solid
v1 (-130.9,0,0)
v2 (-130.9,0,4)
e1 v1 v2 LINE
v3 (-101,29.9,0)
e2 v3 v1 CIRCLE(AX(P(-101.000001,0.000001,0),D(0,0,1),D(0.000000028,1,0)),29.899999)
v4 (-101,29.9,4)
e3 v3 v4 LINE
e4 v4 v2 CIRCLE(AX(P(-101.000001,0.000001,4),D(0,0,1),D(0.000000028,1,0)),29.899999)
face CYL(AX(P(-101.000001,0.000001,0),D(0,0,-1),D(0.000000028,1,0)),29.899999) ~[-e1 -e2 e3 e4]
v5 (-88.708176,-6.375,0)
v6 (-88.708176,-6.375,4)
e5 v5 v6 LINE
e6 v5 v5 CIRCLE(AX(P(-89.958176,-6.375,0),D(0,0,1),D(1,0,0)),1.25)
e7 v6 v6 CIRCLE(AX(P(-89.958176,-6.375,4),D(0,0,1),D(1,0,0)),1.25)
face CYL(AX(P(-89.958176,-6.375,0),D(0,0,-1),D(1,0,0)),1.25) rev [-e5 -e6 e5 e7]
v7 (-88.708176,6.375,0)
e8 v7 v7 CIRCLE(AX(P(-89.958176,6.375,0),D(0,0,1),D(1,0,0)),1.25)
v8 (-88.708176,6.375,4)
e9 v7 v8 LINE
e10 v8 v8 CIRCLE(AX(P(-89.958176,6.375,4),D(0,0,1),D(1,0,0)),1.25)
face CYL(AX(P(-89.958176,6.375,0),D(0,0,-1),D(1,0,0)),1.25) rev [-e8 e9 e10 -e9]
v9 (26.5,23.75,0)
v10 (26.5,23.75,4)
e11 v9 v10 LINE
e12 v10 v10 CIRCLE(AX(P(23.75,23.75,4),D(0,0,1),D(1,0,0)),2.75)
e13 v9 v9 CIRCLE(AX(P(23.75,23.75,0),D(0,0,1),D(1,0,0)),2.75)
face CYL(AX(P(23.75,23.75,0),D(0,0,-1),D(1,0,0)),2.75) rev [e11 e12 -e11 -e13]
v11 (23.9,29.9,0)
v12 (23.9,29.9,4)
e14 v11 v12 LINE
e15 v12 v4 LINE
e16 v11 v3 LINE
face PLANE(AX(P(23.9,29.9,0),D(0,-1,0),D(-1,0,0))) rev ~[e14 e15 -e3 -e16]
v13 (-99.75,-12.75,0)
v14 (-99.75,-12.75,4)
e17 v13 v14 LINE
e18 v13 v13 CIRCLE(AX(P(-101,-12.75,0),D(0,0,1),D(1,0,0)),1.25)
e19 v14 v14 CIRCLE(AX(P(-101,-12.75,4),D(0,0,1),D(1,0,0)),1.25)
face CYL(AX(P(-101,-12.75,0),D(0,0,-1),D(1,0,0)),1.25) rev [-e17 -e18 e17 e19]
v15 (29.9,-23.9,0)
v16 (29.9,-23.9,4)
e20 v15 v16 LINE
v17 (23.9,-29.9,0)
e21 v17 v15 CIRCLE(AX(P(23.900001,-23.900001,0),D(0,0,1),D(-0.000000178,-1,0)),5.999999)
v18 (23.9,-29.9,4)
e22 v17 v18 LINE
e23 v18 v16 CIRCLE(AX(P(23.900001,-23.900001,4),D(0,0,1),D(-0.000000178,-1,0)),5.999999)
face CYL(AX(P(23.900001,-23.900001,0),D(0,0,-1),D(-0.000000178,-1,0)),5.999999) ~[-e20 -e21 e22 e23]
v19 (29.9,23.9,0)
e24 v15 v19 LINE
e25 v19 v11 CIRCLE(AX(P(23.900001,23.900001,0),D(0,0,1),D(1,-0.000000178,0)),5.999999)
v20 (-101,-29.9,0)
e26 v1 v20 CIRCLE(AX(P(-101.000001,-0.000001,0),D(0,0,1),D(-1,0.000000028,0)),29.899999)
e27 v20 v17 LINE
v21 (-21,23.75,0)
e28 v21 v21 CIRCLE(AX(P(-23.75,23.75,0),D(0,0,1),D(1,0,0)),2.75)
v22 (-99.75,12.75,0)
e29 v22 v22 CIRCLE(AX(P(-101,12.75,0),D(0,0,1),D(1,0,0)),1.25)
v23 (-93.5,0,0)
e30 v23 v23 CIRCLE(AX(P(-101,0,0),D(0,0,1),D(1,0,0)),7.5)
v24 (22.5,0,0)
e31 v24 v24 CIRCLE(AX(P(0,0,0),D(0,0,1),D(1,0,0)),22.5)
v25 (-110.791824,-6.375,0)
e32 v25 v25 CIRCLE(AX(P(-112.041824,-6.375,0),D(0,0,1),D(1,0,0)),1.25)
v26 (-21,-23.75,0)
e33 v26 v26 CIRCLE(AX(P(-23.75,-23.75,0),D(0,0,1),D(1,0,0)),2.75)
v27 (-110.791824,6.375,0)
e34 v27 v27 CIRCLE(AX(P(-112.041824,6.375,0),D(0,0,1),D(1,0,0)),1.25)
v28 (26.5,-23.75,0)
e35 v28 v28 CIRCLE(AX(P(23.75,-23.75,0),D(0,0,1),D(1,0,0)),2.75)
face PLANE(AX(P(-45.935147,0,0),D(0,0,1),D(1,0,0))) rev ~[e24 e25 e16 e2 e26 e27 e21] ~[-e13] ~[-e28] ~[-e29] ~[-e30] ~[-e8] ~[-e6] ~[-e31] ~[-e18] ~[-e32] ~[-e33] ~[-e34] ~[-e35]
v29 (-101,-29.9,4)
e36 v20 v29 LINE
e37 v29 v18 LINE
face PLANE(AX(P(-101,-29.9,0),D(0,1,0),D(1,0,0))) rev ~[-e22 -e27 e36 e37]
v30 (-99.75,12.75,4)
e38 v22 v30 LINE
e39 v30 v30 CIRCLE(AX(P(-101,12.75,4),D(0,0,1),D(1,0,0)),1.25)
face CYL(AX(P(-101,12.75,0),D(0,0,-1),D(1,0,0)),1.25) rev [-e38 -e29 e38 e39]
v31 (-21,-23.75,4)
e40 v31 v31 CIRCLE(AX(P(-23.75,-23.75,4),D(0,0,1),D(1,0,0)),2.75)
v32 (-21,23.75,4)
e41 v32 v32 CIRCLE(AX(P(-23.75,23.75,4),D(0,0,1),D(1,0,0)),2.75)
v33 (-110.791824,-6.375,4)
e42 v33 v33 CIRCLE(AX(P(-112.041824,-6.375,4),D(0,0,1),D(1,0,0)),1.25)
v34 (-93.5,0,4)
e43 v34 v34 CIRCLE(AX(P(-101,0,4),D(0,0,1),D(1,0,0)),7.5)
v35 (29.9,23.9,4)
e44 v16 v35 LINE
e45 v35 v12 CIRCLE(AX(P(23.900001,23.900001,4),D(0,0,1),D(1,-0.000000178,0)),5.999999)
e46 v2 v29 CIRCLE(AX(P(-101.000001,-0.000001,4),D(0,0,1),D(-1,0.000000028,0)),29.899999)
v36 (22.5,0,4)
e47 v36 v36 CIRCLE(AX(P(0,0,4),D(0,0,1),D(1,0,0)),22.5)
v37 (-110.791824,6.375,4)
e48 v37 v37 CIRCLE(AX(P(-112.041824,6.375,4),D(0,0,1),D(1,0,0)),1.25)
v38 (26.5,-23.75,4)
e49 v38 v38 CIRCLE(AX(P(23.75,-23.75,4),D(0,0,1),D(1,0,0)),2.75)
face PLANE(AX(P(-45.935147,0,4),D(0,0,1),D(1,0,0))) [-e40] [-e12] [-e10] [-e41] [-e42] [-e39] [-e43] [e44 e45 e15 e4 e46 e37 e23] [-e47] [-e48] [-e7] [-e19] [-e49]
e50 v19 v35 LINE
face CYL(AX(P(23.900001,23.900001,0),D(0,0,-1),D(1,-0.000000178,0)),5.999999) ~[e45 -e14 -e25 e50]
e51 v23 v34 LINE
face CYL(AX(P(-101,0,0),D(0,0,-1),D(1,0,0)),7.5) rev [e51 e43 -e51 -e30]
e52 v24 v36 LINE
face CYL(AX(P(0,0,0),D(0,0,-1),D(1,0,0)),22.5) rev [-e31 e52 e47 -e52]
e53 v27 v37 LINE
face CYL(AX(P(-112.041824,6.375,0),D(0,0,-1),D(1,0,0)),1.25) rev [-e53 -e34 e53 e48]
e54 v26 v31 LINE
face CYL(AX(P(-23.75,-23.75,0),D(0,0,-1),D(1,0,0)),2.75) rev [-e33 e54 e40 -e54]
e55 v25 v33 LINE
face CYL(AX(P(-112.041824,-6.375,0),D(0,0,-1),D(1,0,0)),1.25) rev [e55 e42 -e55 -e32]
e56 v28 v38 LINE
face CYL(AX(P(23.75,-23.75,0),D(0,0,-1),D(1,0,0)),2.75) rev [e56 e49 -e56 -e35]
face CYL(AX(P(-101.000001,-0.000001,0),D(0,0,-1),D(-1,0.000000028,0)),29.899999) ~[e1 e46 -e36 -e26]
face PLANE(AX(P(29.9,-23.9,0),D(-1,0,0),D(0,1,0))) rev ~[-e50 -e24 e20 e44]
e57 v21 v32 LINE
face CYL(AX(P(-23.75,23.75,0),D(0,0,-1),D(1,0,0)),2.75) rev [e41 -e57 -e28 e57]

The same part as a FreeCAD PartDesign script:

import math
import FreeCAD as App
import Part
import Sketcher

doc = App.newDocument("Part")
body = doc.addObject("PartDesign::Body", "Body")

sketch1 = body.newObject("Sketcher::SketchObject", "Sketch")
sketch1.AttachmentSupport = (doc.getObject("XY_Plane"), [""])
sketch1.MapMode = "FlatFace"
sketch1.addGeometry(Part.LineSegment(App.Vector(23.9, 29.9, 0), App.Vector(-101, 29.9, 0)), False)
sketch1.addGeometry(Part.ArcOfCircle(Part.Circle(App.Vector(-101, 0, 0), App.Vector(0, 0, 1), 29.9), math.radians(90), math.radians(180)), False)
sketch1.addGeometry(Part.ArcOfCircle(Part.Circle(App.Vector(-101, 0, 0), App.Vector(0, 0, 1), 29.9), math.radians(180), math.radians(270)), False)
sketch1.addGeometry(Part.LineSegment(App.Vector(-101, -29.9, 0), App.Vector(23.9, -29.9, 0)), False)
sketch1.addGeometry(Part.ArcOfCircle(Part.Circle(App.Vector(23.9, -23.9, 0), App.Vector(0, 0, 1), 6), math.radians(-90), math.radians(0)), False)
sketch1.addGeometry(Part.LineSegment(App.Vector(29.9, -23.9, 0), App.Vector(29.9, 23.9, 0)), False)
sketch1.addGeometry(Part.ArcOfCircle(Part.Circle(App.Vector(23.9, 23.9, 0), App.Vector(0, 0, 1), 6), math.radians(0), math.radians(90)), False)
sketch1.addGeometry(Part.Circle(App.Vector(-101, -12.8, 0), App.Vector(0, 0, 1), 1.2), False)
sketch1.addGeometry(Part.Circle(App.Vector(-112, -6.4, 0), App.Vector(0, 0, 1), 1.2), False)
sketch1.addGeometry(Part.Circle(App.Vector(-90, -6.4, 0), App.Vector(0, 0, 1), 1.2), False)
sketch1.addGeometry(Part.Circle(App.Vector(-23.8, -23.8, 0), App.Vector(0, 0, 1), 2.8), False)
sketch1.addGeometry(Part.Circle(App.Vector(23.8, -23.8, 0), App.Vector(0, 0, 1), 2.8), False)
sketch1.addGeometry(Part.Circle(App.Vector(-101, 0, 0), App.Vector(0, 0, 1), 7.5), False)
sketch1.addGeometry(Part.Circle(App.Vector(-112, 6.4, 0), App.Vector(0, 0, 1), 1.2), False)
sketch1.addGeometry(Part.Circle(App.Vector(-90, 6.4, 0), App.Vector(0, 0, 1), 1.2), False)
sketch1.addGeometry(Part.Circle(App.Vector(-101, 12.8, 0), App.Vector(0, 0, 1), 1.2), False)
sketch1.addGeometry(Part.Circle(App.Vector(0, 0, 0), App.Vector(0, 0, 1), 22.5), False)
sketch1.addGeometry(Part.Circle(App.Vector(-23.8, 23.8, 0), App.Vector(0, 0, 1), 2.8), False)
sketch1.addGeometry(Part.Circle(App.Vector(23.8, 23.8, 0), App.Vector(0, 0, 1), 2.8), False)
sketch1.addConstraint(Sketcher.Constraint("Tangent", 0, 2, 1, 1))
sketch1.addConstraint(Sketcher.Constraint("Tangent", 1, 2, 2, 1))
sketch1.addConstraint(Sketcher.Constraint("Tangent", 2, 2, 3, 1))
sketch1.addConstraint(Sketcher.Constraint("Tangent", 3, 2, 4, 1))
sketch1.addConstraint(Sketcher.Constraint("Tangent", 4, 2, 5, 1))
sketch1.addConstraint(Sketcher.Constraint("Tangent", 5, 2, 6, 1))
sketch1.addConstraint(Sketcher.Constraint("Tangent", 6, 2, 0, 1))
sketch1.addConstraint(Sketcher.Constraint("Horizontal", 0))
sketch1.addConstraint(Sketcher.Constraint("Horizontal", 3))
sketch1.addConstraint(Sketcher.Constraint("Vertical", 5))
sketch1.addConstraint(Sketcher.Constraint("Coincident", 16, 3, -1, 1))
sketch1.addConstraint(Sketcher.Constraint("Coincident", 12, 3, 1, 3))
sketch1.addConstraint(Sketcher.Constraint("Equal", 1, 2))
sketch1.addConstraint(Sketcher.Constraint("Equal", 4, 6))
sketch1.addConstraint(Sketcher.Constraint("Equal", 7, 8))
sketch1.addConstraint(Sketcher.Constraint("Equal", 8, 9))
sketch1.addConstraint(Sketcher.Constraint("Equal", 10, 11))
sketch1.addConstraint(Sketcher.Constraint("Equal", 9, 13))
sketch1.addConstraint(Sketcher.Constraint("Equal", 13, 14))
sketch1.addConstraint(Sketcher.Constraint("Equal", 14, 15))
sketch1.addConstraint(Sketcher.Constraint("Equal", 11, 17))
sketch1.addConstraint(Sketcher.Constraint("Equal", 17, 18))
sketch1.addConstraint(Sketcher.Constraint("Symmetric", 11, 3, 17, 3, -1, 1))
sketch1.addConstraint(Sketcher.Constraint("Symmetric", 10, 3, 18, 3, -1, 1))
sketch1.addConstraint(Sketcher.Constraint("Symmetric", 10, 3, 11, 3, -2))
sketch1.addConstraint(Sketcher.Constraint("Symmetric", 8, 3, 13, 3, -1))
sketch1.addConstraint(Sketcher.Constraint("Symmetric", 9, 3, 14, 3, -1))
sketch1.addConstraint(Sketcher.Constraint("Symmetric", 7, 3, 15, 3, -1))
sketch1.addConstraint(Sketcher.Constraint("PointOnObject", 1, 3, -1))
sketch1.addConstraint(Sketcher.Constraint("PointOnObject", 1, 2, -1))
sketch1.addConstraint(Sketcher.Constraint("Horizontal", 8, 3, 9, 3))
sketch1.addConstraint(Sketcher.Constraint("Vertical", 2, 3, 7, 3))
sketch1.addConstraint(Sketcher.Constraint("Diameter", 12, 15.0))
sketch1.addConstraint(Sketcher.Constraint("Diameter", 16, 45.0))
sketch1.addConstraint(Sketcher.Constraint("Radius", 4, 5.999999))
sketch1.addConstraint(Sketcher.Constraint("Diameter", 7, 2.5))
sketch1.addConstraint(Sketcher.Constraint("Diameter", 10, 5.5))
sketch1.addConstraint(Sketcher.Constraint("Radius", 1, 29.899999))
sketch1.addConstraint(Sketcher.Constraint("DistanceX", 0, 2, 0, 1, 124.9))
sketch1.addConstraint(Sketcher.Constraint("DistanceX", 1, 3, -1, 1, 101.000001))
sketch1.addConstraint(Sketcher.Constraint("DistanceY", 10, 3, 7, 3, 11.0))
sketch1.addConstraint(Sketcher.Constraint("DistanceX", 10, 3, 11, 3, 47.5))
sketch1.addConstraint(Sketcher.Constraint("DistanceY", 10, 3, 17, 3, 47.5))
sketch1.addConstraint(Sketcher.Constraint("DistanceY", 8, 3, 13, 3, 12.75))
sketch1.addConstraint(Sketcher.Constraint("DistanceX", 8, 3, 9, 3, 22.083648))
sketch1.addConstraint(Sketcher.Constraint("DistanceX", 8, 3, -1, 1, 112.041824))
pad1 = body.newObject("PartDesign::Pad", "Pad")
pad1.Profile = sketch1
pad1.Length = 4

doc.recompute()
